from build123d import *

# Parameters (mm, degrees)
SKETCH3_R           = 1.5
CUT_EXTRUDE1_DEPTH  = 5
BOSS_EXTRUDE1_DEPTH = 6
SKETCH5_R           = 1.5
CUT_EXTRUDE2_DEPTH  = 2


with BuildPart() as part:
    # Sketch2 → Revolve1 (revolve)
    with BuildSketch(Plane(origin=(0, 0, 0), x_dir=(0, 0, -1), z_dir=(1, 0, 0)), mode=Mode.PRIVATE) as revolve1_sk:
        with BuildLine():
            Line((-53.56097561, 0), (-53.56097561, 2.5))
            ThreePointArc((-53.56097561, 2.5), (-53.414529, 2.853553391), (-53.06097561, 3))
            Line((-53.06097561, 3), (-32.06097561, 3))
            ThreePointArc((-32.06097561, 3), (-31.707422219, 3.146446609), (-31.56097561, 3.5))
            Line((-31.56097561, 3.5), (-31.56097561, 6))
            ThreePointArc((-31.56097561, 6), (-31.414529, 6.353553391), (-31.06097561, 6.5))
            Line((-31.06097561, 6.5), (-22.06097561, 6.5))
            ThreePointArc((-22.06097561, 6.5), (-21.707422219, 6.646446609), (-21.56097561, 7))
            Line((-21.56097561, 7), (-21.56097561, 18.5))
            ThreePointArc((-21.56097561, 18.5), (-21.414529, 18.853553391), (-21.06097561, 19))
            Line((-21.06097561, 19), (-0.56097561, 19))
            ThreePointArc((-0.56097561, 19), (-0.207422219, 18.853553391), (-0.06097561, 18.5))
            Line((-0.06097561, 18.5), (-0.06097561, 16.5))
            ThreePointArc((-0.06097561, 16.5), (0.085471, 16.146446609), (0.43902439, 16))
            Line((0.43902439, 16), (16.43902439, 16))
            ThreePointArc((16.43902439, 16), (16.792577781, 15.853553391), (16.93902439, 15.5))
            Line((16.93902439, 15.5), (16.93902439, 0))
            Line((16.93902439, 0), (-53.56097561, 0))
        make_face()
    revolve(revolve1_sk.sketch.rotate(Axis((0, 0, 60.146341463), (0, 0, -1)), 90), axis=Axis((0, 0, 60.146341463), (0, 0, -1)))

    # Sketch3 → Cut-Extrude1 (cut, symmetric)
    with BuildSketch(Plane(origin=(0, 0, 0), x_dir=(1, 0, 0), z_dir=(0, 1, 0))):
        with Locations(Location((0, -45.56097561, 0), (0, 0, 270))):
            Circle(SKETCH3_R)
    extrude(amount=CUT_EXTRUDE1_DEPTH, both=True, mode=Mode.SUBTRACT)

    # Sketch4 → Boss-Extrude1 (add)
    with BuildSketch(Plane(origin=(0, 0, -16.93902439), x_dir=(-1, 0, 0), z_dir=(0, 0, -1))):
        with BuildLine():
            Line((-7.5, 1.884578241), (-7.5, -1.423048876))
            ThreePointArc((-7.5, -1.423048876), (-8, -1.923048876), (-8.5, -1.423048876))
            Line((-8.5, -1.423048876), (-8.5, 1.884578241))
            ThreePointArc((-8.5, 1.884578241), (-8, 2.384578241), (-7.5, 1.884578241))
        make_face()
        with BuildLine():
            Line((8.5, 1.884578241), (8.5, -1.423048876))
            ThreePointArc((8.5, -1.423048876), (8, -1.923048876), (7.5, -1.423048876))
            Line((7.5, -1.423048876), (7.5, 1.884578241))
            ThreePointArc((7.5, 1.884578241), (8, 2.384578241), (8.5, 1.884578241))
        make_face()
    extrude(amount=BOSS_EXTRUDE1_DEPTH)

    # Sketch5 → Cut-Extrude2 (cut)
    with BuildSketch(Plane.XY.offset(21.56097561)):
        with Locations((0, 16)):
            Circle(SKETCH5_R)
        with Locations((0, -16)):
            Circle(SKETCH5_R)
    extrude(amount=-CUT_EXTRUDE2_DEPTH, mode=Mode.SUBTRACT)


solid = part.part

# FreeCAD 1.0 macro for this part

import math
import FreeCAD as App
import Part
import Sketcher
from FreeCAD import Vector
Q = App.Units.Quantity

doc = App.newDocument("Part")
body = doc.addObject("PartDesign::Body", "Body")

sketch1 = body.newObject("Sketcher::SketchObject", "Sketch")
sketch1.AttachmentSupport = (doc.getObject("YZ_Plane"), [""])
sketch1.MapMode = "FlatFace"
sketch1.addGeometry(Part.LineSegment(Vector(2.5, 53.560976, 0), Vector(0, 53.560976, 0)), False)
sketch1.addGeometry(Part.LineSegment(Vector(0, 53.560976, 0), Vector(0, -16.939024, 0)), False)
sketch1.addGeometry(Part.LineSegment(Vector(0, -16.939024, 0), Vector(15.5, -16.939024, 0)), False)
sketch1.addGeometry(Part.ArcOfCircle(Part.Circle(Vector(15.5, -16.439024, 0), Vector(0, 0, 1), 0.5), math.radians(-90), math.radians(0)), False)
sketch1.addGeometry(Part.LineSegment(Vector(16, -16.439024, 0), Vector(16, -0.439024, 0)), False)
sketch1.addGeometry(Part.ArcOfCircle(Part.Circle(Vector(16.5, -0.439024, 0), Vector(0, 0, 1), 0.5), math.radians(90), math.radians(180)), False)
sketch1.addGeometry(Part.LineSegment(Vector(16.5, 0.060976, 0), Vector(18.5, 0.060976, 0)), False)
sketch1.addGeometry(Part.ArcOfCircle(Part.Circle(Vector(18.5, 0.560976, 0), Vector(0, 0, 1), 0.5), math.radians(-90), math.radians(0)), False)
sketch1.addGeometry(Part.LineSegment(Vector(19, 0.560976, 0), Vector(19, 21.060976, 0)), False)
sketch1.addGeometry(Part.ArcOfCircle(Part.Circle(Vector(18.5, 21.060976, 0), Vector(0, 0, 1), 0.5), math.radians(0), math.radians(90)), False)
sketch1.addGeometry(Part.LineSegment(Vector(18.5, 21.560976, 0), Vector(7, 21.560976, 0)), False)
sketch1.addGeometry(Part.ArcOfCircle(Part.Circle(Vector(7, 22.060976, 0), Vector(0, 0, 1), 0.5), math.radians(180), math.radians(270)), False)
sketch1.addGeometry(Part.LineSegment(Vector(6.5, 22.060976, 0), Vector(6.5, 31.060976, 0)), False)
sketch1.addGeometry(Part.ArcOfCircle(Part.Circle(Vector(6, 31.060976, 0), Vector(0, 0, 1), 0.5), math.radians(0), math.radians(90)), False)
sketch1.addGeometry(Part.LineSegment(Vector(6, 31.560976, 0), Vector(3.5, 31.560976, 0)), False)
sketch1.addGeometry(Part.ArcOfCircle(Part.Circle(Vector(3.5, 32.060976, 0), Vector(0, 0, 1), 0.5), math.radians(180), math.radians(270)), False)
sketch1.addGeometry(Part.LineSegment(Vector(3, 32.060976, 0), Vector(3, 53.060976, 0)), False)
sketch1.addGeometry(Part.ArcOfCircle(Part.Circle(Vector(2.5, 53.060976, 0), Vector(0, 0, 1), 0.5), math.radians(0), math.radians(90)), False)
sketch1.addConstraint(Sketcher.Constraint("Coincident", 0, 2, 1, 1))
sketch1.addConstraint(Sketcher.Constraint("Coincident", 1, 2, 2, 1))
sketch1.addConstraint(Sketcher.Constraint("Tangent", 2, 2, 3, 1))
sketch1.addConstraint(Sketcher.Constraint("Tangent", 3, 2, 4, 1))
sketch1.addConstraint(Sketcher.Constraint("Tangent", 4, 2, 5, 2))
sketch1.addConstraint(Sketcher.Constraint("Tangent", 5, 1, 6, 1))
sketch1.addConstraint(Sketcher.Constraint("Tangent", 6, 2, 7, 1))
sketch1.addConstraint(Sketcher.Constraint("Tangent", 7, 2, 8, 1))
sketch1.addConstraint(Sketcher.Constraint("Tangent", 8, 2, 9, 1))
sketch1.addConstraint(Sketcher.Constraint("Tangent", 9, 2, 10, 1))
sketch1.addConstraint(Sketcher.Constraint("Tangent", 10, 2, 11, 2))
sketch1.addConstraint(Sketcher.Constraint("Tangent", 11, 1, 12, 1))
sketch1.addConstraint(Sketcher.Constraint("Tangent", 12, 2, 13, 1))
sketch1.addConstraint(Sketcher.Constraint("Tangent", 13, 2, 14, 1))
sketch1.addConstraint(Sketcher.Constraint("Tangent", 14, 2, 15, 2))
sketch1.addConstraint(Sketcher.Constraint("Tangent", 15, 1, 16, 1))
sketch1.addConstraint(Sketcher.Constraint("Tangent", 16, 2, 17, 1))
sketch1.addConstraint(Sketcher.Constraint("Tangent", 17, 2, 0, 1))
sketch1.addConstraint(Sketcher.Constraint("Horizontal", 0))
sketch1.addConstraint(Sketcher.Constraint("Vertical", 1))
sketch1.addConstraint(Sketcher.Constraint("Horizontal", 2))
sketch1.addConstraint(Sketcher.Constraint("Vertical", 4))
sketch1.addConstraint(Sketcher.Constraint("Horizontal", 6))
sketch1.addConstraint(Sketcher.Constraint("Vertical", 8))
sketch1.addConstraint(Sketcher.Constraint("Horizontal", 10))
sketch1.addConstraint(Sketcher.Constraint("Vertical", 12))
sketch1.addConstraint(Sketcher.Constraint("Horizontal", 14))
sketch1.addConstraint(Sketcher.Constraint("Vertical", 16))
sketch1.addConstraint(Sketcher.Constraint("Equal", 3, 5))
sketch1.addConstraint(Sketcher.Constraint("Equal", 5, 7))
sketch1.addConstraint(Sketcher.Constraint("Equal", 7, 9))
sketch1.addConstraint(Sketcher.Constraint("Equal", 9, 11))
sketch1.addConstraint(Sketcher.Constraint("Equal", 11, 13))
sketch1.addConstraint(Sketcher.Constraint("Equal", 13, 15))
sketch1.addConstraint(Sketcher.Constraint("Equal", 15, 17))
sketch1.addConstraint(Sketcher.Constraint("PointOnObject", 0, 2, -2))
sketch1.addConstraint(Sketcher.Constraint("Equal", 0, 14))
sketch1.addConstraint(Sketcher.Constraint("Radius", 3, Q("0.5 mm")))
sketch1.addConstraint(Sketcher.Constraint("DistanceX", 6, 1, 6, 2, Q("2 mm")))
sketch1.addConstraint(Sketcher.Constraint("DistanceY", 4, 1, 4, 2, Q("16 mm")))
sketch1.addConstraint(Sketcher.Constraint("DistanceY", 12, 1, 12, 2, Q("9 mm")))
sketch1.addConstraint(Sketcher.Constraint("DistanceY", 16, 1, 16, 2, Q("21 mm")))
sketch1.addConstraint(Sketcher.Constraint("DistanceX", 0, 2, 0, 1, Q("2.5 mm")))
sketch1.addConstraint(Sketcher.Constraint("DistanceX", 2, 1, 2, 2, Q("15.5 mm")))
sketch1.addConstraint(Sketcher.Constraint("DistanceY", 1, 2, 1, 1, Q("70.5 mm")))
sketch1.addConstraint(Sketcher.Constraint("DistanceY", 3, 3, -1, 1, Q("16.439024 mm")))
revolution = body.newObject("PartDesign::Revolution", "Revolution")
revolution.Profile = sketch1
revolution.ReferenceAxis = (sketch1, ["V_Axis"])
revolution.Angle = 360

sketch2 = body.newObject("Sketcher::SketchObject", "Sketch001")
sketch2.AttachmentSupport = (doc.getObject("XZ_Plane"), [""])
sketch2.MapMode = "FlatFace"
sketch2.addGeometry(Part.Circle(Vector(0, 45.560976, 0), Vector(0, 0, 1), 1.5), False)
sketch2.addConstraint(Sketcher.Constraint("PointOnObject", 0, 3, -2))
sketch2.addConstraint(Sketcher.Constraint("Diameter", 0, Q("3 mm")))
sketch2.addConstraint(Sketcher.Constraint("DistanceY", -1, 1, 0, 3, Q("45.560976 mm")))
pocket1 = body.newObject("PartDesign::Pocket", "Pocket")
pocket1.Profile = sketch2
pocket1.Length = 10
pocket1.Midplane = True

sketch3 = body.newObject("Sketcher::SketchObject", "Sketch002")
sketch3.AttachmentSupport = (doc.getObject("XY_Plane"), [""])
sketch3.MapMode = "FlatFace"
sketch3.AttachmentOffset = App.Placement(Vector(0, 0, -16.939024), App.Rotation())
sketch3.addGeometry(Part.LineSegment(Vector(7.5, -1.423049, 0), Vector(7.5, 1.884578, 0)), False)
sketch3.addGeometry(Part.ArcOfCircle(Part.Circle(Vector(8, 1.884578, 0), Vector(0, 0, 1), 0.5), math.radians(0), math.radians(180)), False)
sketch3.addGeometry(Part.LineSegment(Vector(8.5, 1.884578, 0), Vector(8.5, -1.423049, 0)), False)
sketch3.addGeometry(Part.ArcOfCircle(Part.Circle(Vector(8, -1.423049, 0), Vector(0, 0, 1), 0.5), math.radians(180), math.radians(360)), False)
sketch3.addGeometry(Part.LineSegment(Vector(-8.5, -1.423049, 0), Vector(-8.5, 1.884578, 0)), False)
sketch3.addGeometry(Part.ArcOfCircle(Part.Circle(Vector(-8, 1.884578, 0), Vector(0, 0, 1), 0.5), math.radians(0), math.radians(180)), False)
sketch3.addGeometry(Part.LineSegment(Vector(-7.5, 1.884578, 0), Vector(-7.5, -1.423049, 0)), False)
sketch3.addGeometry(Part.ArcOfCircle(Part.Circle(Vector(-8, -1.423049, 0), Vector(0, 0, 1), 0.5), math.radians(180), math.radians(360)), False)
sketch3.addConstraint(Sketcher.Constraint("Tangent", 0, 2, 1, 2))
sketch3.addConstraint(Sketcher.Constraint("Tangent", 1, 1, 2, 1))
sketch3.addConstraint(Sketcher.Constraint("Tangent", 2, 2, 3, 2))
sketch3.addConstraint(Sketcher.Constraint("Tangent", 3, 1, 0, 1))
sketch3.addConstraint(Sketcher.Constraint("Tangent", 4, 2, 5, 2))
sketch3.addConstraint(Sketcher.Constraint("Tangent", 5, 1, 6, 1))
sketch3.addConstraint(Sketcher.Constraint("Tangent", 6, 2, 7, 2))
sketch3.addConstraint(Sketcher.Constraint("Tangent", 7, 1, 4, 1))
sketch3.addConstraint(Sketcher.Constraint("Vertical", 0))
sketch3.addConstraint(Sketcher.Constraint("Vertical", 2))
sketch3.addConstraint(Sketcher.Constraint("Vertical", 4))
sketch3.addConstraint(Sketcher.Constraint("Vertical", 6))
sketch3.addConstraint(Sketcher.Constraint("Equal", 3, 5))
sketch3.addConstraint(Sketcher.Constraint("Symmetric", 1, 3, 5, 3, -2))
sketch3.addConstraint(Sketcher.Constraint("Horizontal", 3, 3, 7, 3))
sketch3.addConstraint(Sketcher.Constraint("Radius", 1, Q("0.5 mm")))
sketch3.addConstraint(Sketcher.Constraint("DistanceX", -1, 1, 1, 3, Q("8 mm")))
sketch3.addConstraint(Sketcher.Constraint("DistanceY", 0, 1, 0, 2, Q("3.307627 mm")))
sketch3.addConstraint(Sketcher.Constraint("DistanceY", -1, 1, 1, 3, Q("1.884578 mm")))
pad1 = body.newObject("PartDesign::Pad", "Pad")
pad1.Profile = sketch3
pad1.Length = 6
pad1.Reversed = True

sketch4 = body.newObject("Sketcher::SketchObject", "Sketch003")
sketch4.AttachmentSupport = (doc.getObject("XY_Plane"), [""])
sketch4.MapMode = "FlatFace"
sketch4.AttachmentOffset = App.Placement(Vector(0, 0, 21.560976), App.Rotation())
sketch4.addGeometry(Part.Circle(Vector(0, 16, 0), Vector(0, 0, 1), 1.5), False)
sketch4.addGeometry(Part.Circle(Vector(0, -16, 0), Vector(0, 0, 1), 1.5), False)
sketch4.addConstraint(Sketcher.Constraint("Equal", 0, 1))
sketch4.addConstraint(Sketcher.Constraint("Symmetric", 0, 3, 1, 3, -1, 1))
sketch4.addConstraint(Sketcher.Constraint("PointOnObject", 0, 3, -2))
sketch4.addConstraint(Sketcher.Constraint("Diameter", 0, Q("3 mm")))
sketch4.addConstraint(Sketcher.Constraint("DistanceY", -1, 1, 0, 3, Q("16 mm")))
pocket2 = body.newObject("PartDesign::Pocket", "Pocket001")
pocket2.Profile = sketch4
pocket2.Length = 2

doc.recompute()
